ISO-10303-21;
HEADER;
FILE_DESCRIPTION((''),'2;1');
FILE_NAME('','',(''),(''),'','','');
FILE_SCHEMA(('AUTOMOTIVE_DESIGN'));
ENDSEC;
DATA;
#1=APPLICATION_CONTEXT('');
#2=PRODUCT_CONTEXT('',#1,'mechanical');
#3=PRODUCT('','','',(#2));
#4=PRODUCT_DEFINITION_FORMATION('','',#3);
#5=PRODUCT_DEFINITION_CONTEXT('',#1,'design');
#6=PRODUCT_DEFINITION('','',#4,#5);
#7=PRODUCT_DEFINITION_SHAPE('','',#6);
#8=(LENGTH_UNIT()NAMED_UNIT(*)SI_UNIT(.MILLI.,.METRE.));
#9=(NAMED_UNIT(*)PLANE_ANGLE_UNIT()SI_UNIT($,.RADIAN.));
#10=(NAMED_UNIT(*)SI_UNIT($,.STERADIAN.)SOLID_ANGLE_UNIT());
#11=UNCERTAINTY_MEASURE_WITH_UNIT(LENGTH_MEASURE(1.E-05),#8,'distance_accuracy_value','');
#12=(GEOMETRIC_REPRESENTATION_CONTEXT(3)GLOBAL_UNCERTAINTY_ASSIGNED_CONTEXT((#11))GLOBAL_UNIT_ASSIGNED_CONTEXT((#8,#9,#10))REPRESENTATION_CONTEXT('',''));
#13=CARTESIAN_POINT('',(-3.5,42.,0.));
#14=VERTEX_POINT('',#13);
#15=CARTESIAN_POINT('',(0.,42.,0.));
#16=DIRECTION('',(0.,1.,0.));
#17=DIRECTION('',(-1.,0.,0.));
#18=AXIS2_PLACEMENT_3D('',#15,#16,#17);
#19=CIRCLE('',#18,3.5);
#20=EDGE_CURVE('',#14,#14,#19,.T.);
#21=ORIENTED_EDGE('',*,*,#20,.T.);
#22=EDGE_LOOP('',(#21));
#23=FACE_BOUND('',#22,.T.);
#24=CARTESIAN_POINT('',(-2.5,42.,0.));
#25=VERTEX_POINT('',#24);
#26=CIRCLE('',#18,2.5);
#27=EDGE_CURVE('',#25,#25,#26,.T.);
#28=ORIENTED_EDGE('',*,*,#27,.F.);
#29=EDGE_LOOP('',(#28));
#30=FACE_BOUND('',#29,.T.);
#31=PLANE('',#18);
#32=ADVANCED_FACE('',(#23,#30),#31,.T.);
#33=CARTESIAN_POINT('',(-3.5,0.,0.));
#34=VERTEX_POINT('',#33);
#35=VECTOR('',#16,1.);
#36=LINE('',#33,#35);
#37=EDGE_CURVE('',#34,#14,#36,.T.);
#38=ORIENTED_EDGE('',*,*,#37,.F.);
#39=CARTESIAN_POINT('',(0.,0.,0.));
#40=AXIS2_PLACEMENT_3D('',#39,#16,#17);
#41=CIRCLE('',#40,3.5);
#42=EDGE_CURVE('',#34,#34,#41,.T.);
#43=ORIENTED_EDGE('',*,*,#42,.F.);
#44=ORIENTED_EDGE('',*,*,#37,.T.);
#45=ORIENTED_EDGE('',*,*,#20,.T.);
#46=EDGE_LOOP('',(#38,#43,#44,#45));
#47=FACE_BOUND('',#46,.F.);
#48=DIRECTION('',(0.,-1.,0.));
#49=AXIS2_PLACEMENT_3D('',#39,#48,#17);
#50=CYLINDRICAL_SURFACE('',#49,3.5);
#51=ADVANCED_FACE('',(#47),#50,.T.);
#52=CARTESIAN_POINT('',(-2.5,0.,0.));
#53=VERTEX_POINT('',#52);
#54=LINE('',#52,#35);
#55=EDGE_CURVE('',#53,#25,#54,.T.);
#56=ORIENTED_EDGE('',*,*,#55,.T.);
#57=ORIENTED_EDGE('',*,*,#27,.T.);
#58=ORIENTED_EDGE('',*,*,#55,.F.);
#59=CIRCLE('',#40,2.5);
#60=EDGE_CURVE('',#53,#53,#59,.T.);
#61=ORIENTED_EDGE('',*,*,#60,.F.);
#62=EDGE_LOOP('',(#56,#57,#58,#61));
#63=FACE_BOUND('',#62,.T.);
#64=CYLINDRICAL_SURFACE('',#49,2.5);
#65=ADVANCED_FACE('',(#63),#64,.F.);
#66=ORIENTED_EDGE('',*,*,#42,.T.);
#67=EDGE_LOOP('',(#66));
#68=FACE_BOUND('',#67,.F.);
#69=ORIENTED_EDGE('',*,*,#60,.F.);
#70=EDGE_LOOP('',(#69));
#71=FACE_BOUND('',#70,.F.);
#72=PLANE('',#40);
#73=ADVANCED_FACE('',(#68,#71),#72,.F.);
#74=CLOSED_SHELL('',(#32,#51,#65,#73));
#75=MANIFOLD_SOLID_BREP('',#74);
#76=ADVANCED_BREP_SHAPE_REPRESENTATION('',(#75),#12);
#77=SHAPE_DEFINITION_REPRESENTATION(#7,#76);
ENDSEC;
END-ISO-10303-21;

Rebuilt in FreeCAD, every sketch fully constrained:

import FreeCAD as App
import Part
import Sketcher
Q = App.Units.Quantity

doc = App.newDocument("Part")
body = doc.addObject("PartDesign::Body", "Body")

# Sketch on XZ plane
sketch1 = body.newObject("Sketcher::SketchObject", "Sketch")
sketch1.AttachmentSupport = (doc.getObject("XZ_Plane"), [""])
sketch1.MapMode = "FlatFace"
sketch1.addGeometry([
    Part.Circle(App.Vector(0, 0, 0), App.Vector(0, 0, 1), 3.5),
    Part.Circle(App.Vector(0, 0, 0), App.Vector(0, 0, 1), 2.5),
], False)
sketch1.addConstraint([
    Sketcher.Constraint("Coincident", 0, 3, -1, 1),
    Sketcher.Constraint("Coincident", 1, 3, -1, 1),
    Sketcher.Constraint("Diameter", 0, Q("7 mm")),
    Sketcher.Constraint("Diameter", 1, Q("5 mm")),
])
pad1 = body.newObject("PartDesign::Pad", "Pad")
pad1.Profile = sketch1
pad1.Length = 42
pad1.Reversed = True

doc.recompute()
